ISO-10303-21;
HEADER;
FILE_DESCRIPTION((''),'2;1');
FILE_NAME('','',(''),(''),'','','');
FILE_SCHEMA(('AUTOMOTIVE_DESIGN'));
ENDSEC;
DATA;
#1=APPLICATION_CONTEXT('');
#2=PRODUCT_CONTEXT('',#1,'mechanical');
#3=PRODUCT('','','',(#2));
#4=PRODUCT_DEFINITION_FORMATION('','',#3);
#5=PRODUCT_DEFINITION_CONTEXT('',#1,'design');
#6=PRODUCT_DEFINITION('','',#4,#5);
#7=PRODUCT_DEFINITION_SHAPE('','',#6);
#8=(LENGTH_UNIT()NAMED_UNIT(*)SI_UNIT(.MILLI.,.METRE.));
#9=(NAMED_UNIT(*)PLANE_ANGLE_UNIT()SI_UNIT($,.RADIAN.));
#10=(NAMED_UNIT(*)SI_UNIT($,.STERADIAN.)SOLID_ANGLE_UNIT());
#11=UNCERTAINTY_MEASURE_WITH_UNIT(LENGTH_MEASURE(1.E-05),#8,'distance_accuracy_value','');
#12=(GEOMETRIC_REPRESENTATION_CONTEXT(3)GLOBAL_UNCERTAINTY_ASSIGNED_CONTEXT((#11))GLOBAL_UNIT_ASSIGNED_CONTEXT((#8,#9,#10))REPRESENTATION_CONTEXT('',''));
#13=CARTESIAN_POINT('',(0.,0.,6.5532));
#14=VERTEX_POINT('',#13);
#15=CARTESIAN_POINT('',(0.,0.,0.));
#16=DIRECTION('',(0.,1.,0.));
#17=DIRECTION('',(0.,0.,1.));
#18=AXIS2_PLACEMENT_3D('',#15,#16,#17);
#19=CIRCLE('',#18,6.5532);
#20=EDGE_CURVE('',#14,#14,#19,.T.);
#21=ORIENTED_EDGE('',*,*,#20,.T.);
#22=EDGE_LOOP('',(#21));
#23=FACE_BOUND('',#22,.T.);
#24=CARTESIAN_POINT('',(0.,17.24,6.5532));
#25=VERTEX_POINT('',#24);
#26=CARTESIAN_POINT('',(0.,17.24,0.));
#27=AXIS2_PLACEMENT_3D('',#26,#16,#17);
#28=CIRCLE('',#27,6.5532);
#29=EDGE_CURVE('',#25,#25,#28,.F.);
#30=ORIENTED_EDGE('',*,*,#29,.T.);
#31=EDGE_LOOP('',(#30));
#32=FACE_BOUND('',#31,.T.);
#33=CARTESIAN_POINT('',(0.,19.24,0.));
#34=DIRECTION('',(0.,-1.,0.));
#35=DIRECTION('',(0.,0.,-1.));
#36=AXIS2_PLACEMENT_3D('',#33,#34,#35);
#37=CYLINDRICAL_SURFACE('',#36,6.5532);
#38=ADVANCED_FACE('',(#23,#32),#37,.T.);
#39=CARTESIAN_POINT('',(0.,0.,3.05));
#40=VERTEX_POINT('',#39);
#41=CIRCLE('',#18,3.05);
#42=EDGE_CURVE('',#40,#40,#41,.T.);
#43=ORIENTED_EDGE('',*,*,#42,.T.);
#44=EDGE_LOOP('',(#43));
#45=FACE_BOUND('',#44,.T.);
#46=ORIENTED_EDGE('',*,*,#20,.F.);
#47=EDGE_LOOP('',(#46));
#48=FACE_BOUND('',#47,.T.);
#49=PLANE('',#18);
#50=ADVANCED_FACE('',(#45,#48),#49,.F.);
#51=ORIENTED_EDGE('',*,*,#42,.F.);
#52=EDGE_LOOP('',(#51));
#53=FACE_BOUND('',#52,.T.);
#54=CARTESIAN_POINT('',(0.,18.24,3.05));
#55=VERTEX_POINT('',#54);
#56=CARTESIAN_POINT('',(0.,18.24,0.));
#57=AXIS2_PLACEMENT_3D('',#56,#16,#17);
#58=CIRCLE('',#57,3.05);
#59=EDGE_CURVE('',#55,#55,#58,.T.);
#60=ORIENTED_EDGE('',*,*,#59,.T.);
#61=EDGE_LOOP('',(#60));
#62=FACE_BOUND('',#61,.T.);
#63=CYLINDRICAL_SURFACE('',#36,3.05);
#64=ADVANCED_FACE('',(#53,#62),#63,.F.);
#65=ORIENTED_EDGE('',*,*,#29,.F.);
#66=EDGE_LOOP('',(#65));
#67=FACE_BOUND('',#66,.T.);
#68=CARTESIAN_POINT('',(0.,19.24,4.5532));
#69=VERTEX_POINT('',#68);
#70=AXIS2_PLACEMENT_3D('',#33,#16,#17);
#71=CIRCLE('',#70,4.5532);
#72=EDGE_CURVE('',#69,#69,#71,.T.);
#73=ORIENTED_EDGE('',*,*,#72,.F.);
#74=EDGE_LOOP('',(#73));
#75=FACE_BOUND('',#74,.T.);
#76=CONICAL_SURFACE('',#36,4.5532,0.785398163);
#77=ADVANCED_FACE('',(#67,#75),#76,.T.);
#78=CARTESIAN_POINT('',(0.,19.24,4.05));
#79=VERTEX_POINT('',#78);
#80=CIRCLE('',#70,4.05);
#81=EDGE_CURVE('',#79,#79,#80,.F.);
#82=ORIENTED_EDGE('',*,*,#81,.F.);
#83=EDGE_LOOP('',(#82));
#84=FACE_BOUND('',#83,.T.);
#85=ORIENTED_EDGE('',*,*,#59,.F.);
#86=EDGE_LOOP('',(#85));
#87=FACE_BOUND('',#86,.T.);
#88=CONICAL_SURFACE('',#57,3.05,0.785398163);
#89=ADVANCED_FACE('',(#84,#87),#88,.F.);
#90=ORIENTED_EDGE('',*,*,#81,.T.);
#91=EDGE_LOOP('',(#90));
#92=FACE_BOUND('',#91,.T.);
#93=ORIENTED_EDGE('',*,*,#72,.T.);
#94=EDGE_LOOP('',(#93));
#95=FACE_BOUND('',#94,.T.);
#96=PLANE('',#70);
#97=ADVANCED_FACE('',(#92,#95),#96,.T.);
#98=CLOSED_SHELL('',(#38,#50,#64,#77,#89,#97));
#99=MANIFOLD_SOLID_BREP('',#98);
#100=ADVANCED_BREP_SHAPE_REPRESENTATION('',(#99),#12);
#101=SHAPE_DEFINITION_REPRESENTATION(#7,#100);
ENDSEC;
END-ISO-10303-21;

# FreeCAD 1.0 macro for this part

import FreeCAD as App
import Part
import Sketcher

V = App.Vector


def edges_at(feature, points):
    """Names of the edges that pass closest to the given points."""
    edges = feature.Shape.Edges
    near = lambda p: min(range(len(edges)), key=lambda i: edges[i].distToShape(Part.Vertex(*p))[0])
    return sorted({f"Edge{near(p) + 1}" for p in points})

doc = App.newDocument("Part")
params = doc.addObject("Spreadsheet::Sheet", "Params")
for row, (alias, value) in enumerate([
    ("sketch1_diameter", "6.1 mm"),
    ("pad1_length", "19.24 mm"),
    ("chamfer_size", "2 mm"),
    ("chamfer2_size", "1 mm"),
], start=1):
    params.set(f"A{row}", alias)
    params.set(f"B{row}", "=" + value)
    params.setAlias(f"B{row}", alias)

body = doc.addObject("PartDesign::Body", "Body")

# Sketch on XZ plane
sketch1 = body.newObject("Sketcher::SketchObject", "Sketch")
sketch1.AttachmentSupport = (doc.getObject("XZ_Plane"), [""])
sketch1.MapMode = "FlatFace"
sketch1.addGeometry([
    Part.Circle(V(0, 0, 0), V(0, 0, 1), 6.6),
    Part.Circle(V(0, 0, 0), V(0, 0, 1), 3),
], False)
sketch1.addConstraint([
    Sketcher.Constraint("Coincident", 0, 3, -1, 1),
    Sketcher.Constraint("Coincident", 1, 3, -1, 1),
    Sketcher.Constraint("Diameter", 1, 6.1),
    Sketcher.Constraint("Diameter", 0, 13.1064),
])
sketch1.setExpression("Constraints[2]", "Params.sketch1_diameter")
pad1 = body.newObject("PartDesign::Pad", "Pad")
pad1.Profile = sketch1
pad1.setExpression("Length", "Params.pad1_length")
pad1.Reversed = True
doc.recompute()

chamfer = body.newObject("PartDesign::Chamfer", "Chamfer")
chamfer.Base = (pad1, edges_at(pad1, [(0, 19.24, -6.553)]))
chamfer.setExpression("Size", "Params.chamfer_size")
doc.recompute()

chamfer2 = body.newObject("PartDesign::Chamfer", "Chamfer001")
chamfer2.Base = (chamfer, edges_at(chamfer, [(0, 19.24, -3.05)]))
chamfer2.setExpression("Size", "Params.chamfer2_size")

doc.recompute()
